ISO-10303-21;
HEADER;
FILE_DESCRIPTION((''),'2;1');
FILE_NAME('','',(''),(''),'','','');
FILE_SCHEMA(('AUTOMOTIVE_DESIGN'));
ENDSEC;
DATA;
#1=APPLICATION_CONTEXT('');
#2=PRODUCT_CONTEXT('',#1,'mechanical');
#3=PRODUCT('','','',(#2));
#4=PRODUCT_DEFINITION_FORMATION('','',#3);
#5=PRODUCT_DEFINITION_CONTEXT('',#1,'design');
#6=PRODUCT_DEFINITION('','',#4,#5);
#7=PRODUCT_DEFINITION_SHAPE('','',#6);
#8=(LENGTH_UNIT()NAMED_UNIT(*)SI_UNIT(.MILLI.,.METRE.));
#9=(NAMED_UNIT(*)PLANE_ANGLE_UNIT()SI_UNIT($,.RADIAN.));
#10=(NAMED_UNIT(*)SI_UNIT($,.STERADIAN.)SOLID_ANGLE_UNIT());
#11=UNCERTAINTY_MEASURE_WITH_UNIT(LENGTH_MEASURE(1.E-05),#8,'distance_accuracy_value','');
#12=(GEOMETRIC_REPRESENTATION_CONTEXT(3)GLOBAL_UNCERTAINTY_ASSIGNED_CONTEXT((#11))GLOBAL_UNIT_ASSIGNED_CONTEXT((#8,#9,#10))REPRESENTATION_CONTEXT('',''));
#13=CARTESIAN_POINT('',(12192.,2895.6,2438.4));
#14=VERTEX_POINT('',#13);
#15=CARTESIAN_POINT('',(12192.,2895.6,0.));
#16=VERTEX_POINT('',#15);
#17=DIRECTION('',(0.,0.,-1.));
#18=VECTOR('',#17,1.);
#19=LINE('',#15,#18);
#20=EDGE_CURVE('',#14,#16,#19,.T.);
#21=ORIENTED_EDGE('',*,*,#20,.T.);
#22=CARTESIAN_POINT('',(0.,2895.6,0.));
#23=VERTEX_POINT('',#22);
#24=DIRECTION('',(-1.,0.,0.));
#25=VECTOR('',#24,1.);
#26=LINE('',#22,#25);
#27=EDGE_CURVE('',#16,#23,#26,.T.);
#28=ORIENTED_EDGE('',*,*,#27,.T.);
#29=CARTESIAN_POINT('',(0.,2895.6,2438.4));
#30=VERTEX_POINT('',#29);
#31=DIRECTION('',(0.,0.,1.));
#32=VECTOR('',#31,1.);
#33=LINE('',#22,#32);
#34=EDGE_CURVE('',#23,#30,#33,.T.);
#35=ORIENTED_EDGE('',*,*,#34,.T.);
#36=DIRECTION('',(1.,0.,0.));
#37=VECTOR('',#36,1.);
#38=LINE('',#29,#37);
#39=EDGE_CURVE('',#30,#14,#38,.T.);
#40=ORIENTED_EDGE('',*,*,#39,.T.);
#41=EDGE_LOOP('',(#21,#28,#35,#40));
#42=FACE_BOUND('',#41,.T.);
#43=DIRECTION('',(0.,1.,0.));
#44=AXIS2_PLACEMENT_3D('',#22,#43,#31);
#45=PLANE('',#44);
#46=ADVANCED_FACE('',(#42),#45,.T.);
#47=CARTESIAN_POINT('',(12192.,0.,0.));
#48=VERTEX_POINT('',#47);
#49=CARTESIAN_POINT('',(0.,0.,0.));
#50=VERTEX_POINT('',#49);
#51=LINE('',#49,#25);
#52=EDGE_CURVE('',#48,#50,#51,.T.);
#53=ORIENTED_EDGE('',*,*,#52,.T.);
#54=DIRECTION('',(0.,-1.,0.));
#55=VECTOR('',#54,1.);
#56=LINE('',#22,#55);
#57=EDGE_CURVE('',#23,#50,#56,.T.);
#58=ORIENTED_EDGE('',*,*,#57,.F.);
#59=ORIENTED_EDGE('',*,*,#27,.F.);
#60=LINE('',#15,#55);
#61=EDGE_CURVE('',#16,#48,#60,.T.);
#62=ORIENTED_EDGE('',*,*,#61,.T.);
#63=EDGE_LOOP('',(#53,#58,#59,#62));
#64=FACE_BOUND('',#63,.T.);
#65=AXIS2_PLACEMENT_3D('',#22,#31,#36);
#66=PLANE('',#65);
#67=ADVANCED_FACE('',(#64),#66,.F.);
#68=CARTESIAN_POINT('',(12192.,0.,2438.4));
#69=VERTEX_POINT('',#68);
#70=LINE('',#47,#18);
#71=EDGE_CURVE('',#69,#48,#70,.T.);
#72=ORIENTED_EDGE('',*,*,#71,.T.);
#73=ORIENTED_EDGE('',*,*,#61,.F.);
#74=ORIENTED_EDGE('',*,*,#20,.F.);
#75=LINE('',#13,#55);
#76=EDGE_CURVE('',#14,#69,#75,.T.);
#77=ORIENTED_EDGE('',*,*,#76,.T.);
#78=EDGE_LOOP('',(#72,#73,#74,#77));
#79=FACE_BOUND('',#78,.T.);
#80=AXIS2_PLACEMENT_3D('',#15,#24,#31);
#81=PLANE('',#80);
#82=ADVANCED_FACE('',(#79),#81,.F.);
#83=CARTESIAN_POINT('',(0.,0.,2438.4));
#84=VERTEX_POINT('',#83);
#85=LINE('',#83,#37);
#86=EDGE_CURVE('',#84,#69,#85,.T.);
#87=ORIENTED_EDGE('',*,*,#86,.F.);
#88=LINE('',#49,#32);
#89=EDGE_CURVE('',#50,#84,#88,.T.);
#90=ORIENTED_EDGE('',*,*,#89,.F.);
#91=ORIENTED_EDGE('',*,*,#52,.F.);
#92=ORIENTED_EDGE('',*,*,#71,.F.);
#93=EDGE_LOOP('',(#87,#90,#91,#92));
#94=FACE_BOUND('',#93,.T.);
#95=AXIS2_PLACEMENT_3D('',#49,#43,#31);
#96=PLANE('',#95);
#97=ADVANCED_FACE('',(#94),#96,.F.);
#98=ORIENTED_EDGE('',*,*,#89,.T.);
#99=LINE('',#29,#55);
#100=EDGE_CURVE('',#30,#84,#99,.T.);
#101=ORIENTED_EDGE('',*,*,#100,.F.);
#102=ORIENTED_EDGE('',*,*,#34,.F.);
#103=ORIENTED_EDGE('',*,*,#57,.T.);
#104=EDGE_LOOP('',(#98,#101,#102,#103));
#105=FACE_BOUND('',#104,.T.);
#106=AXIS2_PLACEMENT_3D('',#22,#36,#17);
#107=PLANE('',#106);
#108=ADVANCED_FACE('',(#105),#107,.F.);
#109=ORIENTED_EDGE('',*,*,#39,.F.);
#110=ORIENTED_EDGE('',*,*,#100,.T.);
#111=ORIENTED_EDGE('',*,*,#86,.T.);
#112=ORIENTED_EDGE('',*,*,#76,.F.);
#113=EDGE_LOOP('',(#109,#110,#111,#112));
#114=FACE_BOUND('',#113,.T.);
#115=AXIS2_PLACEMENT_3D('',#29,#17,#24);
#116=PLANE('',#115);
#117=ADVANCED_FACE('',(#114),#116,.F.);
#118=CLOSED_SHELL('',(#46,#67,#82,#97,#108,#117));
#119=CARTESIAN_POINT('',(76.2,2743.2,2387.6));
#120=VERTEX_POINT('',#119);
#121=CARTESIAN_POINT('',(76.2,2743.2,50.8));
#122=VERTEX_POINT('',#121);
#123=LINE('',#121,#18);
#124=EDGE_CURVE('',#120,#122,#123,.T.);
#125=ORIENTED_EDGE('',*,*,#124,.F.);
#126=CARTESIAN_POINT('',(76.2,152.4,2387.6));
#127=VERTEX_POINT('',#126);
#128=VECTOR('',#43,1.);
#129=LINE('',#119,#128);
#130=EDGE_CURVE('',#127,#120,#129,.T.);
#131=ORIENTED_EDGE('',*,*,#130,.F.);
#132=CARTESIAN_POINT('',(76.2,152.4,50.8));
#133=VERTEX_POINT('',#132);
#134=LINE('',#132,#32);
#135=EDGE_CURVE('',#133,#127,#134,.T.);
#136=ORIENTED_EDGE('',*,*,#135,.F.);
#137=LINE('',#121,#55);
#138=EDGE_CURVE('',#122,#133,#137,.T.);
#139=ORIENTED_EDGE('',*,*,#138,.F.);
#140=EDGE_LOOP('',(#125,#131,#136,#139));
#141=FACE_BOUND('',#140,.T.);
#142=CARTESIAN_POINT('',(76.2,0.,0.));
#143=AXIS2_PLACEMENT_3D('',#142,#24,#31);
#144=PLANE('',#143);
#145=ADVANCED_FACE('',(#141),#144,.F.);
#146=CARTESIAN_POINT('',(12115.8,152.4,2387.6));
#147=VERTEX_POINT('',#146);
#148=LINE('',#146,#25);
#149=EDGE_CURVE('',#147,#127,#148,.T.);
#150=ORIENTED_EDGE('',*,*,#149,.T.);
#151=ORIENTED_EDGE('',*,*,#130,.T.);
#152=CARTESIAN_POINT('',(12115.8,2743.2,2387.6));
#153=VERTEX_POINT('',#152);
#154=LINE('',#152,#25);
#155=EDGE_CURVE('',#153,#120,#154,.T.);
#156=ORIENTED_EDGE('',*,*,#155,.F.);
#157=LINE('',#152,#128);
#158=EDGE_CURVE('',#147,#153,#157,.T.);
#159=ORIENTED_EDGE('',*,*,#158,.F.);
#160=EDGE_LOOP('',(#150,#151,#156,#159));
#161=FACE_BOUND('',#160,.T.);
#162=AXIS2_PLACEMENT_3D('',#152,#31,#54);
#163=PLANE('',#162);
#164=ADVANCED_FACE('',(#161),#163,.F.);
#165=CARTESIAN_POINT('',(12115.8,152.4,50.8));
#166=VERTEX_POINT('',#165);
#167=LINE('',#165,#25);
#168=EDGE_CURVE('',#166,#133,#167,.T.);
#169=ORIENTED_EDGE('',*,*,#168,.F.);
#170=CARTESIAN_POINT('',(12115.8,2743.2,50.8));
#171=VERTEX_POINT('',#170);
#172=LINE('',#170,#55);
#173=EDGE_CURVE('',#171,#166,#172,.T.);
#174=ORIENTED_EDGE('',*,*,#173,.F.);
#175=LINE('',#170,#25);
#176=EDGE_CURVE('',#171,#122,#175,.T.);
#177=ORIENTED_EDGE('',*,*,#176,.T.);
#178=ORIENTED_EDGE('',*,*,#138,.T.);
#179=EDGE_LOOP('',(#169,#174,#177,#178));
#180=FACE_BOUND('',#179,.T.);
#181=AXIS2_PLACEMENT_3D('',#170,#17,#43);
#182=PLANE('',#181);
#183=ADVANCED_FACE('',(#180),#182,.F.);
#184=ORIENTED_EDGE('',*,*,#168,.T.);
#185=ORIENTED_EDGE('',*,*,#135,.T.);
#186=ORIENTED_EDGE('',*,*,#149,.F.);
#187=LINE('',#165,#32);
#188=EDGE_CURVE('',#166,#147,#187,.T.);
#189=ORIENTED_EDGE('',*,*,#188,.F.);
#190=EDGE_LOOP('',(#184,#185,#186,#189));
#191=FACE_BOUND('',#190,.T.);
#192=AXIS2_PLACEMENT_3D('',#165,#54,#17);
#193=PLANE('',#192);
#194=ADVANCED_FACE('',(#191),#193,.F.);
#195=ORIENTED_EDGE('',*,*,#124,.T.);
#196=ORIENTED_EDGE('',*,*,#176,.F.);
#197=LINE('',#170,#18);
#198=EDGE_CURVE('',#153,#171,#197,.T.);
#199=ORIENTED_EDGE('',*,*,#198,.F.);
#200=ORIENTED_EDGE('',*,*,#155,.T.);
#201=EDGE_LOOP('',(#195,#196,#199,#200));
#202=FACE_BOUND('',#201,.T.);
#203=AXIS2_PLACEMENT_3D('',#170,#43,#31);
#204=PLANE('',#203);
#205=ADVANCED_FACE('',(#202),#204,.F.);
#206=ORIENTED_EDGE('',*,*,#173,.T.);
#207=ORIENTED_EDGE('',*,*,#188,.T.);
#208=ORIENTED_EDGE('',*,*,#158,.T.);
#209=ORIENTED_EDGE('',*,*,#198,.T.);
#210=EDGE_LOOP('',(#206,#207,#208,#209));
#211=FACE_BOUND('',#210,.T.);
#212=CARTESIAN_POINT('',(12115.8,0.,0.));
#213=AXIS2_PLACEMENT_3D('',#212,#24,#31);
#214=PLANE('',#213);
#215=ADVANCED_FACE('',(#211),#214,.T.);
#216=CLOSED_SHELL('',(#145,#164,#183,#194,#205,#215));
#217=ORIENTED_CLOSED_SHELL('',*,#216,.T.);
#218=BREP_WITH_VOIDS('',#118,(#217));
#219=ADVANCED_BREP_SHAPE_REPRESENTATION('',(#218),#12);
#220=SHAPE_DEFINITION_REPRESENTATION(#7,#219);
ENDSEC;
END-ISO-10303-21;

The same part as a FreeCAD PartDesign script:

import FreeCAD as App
import Part
import Sketcher
from FreeCAD import Vector
Q = App.Units.Quantity

doc = App.newDocument("Part")
body = doc.addObject("PartDesign::Body", "Body")

# Sketch on XZ plane
sketch1 = body.newObject("Sketcher::SketchObject", "Sketch")
sketch1.AttachmentSupport = (doc.getObject("XZ_Plane"), [""])
sketch1.MapMode = "FlatFace"
sketch1.addGeometry(Part.LineSegment(Vector(0, 0, 0), Vector(0, 2438.4, 0)), False)
sketch1.addGeometry(Part.LineSegment(Vector(0, 2438.4, 0), Vector(12192, 2438.4, 0)), False)
sketch1.addGeometry(Part.LineSegment(Vector(12192, 2438.4, 0), Vector(12192, 0, 0)), False)
sketch1.addGeometry(Part.LineSegment(Vector(12192, 0, 0), Vector(0, 0, 0)), False)
sketch1.addConstraint(Sketcher.Constraint("Coincident", 0, 2, 1, 1))
sketch1.addConstraint(Sketcher.Constraint("Coincident", 1, 2, 2, 1))
sketch1.addConstraint(Sketcher.Constraint("Coincident", 2, 2, 3, 1))
sketch1.addConstraint(Sketcher.Constraint("Coincident", 3, 2, 0, 1))
sketch1.addConstraint(Sketcher.Constraint("Vertical", 0))
sketch1.addConstraint(Sketcher.Constraint("Horizontal", 1))
sketch1.addConstraint(Sketcher.Constraint("Vertical", 2))
sketch1.addConstraint(Sketcher.Constraint("Horizontal", 3))
sketch1.addConstraint(Sketcher.Constraint("Coincident", 3, 2, -1, 1))
sketch1.addConstraint(Sketcher.Constraint("DistanceX", 1, 1, 1, 2, Q("480 in")))
sketch1.addConstraint(Sketcher.Constraint("DistanceY", 0, 1, 0, 2, Q("96 in")))
pad1 = body.newObject("PartDesign::Pad", "Pad")
pad1.Profile = sketch1
pad1.Length = Q("114 in")
pad1.Reversed = True

# Sketch on YZ plane
sketch2 = body.newObject("Sketcher::SketchObject", "Sketch001")
sketch2.AttachmentSupport = (doc.getObject("YZ_Plane"), [""])
sketch2.MapMode = "FlatFace"
sketch2.AttachmentOffset = App.Placement(Vector(0, 0, 3 * 25.4), App.Rotation())
sketch2.addGeometry(Part.LineSegment(Vector(2743.2, 50.8, 0), Vector(152.4, 50.8, 0)), False)
sketch2.addGeometry(Part.LineSegment(Vector(152.4, 50.8, 0), Vector(152.4, 2387.6, 0)), False)
sketch2.addGeometry(Part.LineSegment(Vector(152.4, 2387.6, 0), Vector(2743.2, 2387.6, 0)), False)
sketch2.addGeometry(Part.LineSegment(Vector(2743.2, 2387.6, 0), Vector(2743.2, 50.8, 0)), False)
sketch2.addConstraint(Sketcher.Constraint("Coincident", 0, 2, 1, 1))
sketch2.addConstraint(Sketcher.Constraint("Coincident", 1, 2, 2, 1))
sketch2.addConstraint(Sketcher.Constraint("Coincident", 2, 2, 3, 1))
sketch2.addConstraint(Sketcher.Constraint("Coincident", 3, 2, 0, 1))
sketch2.addConstraint(Sketcher.Constraint("Horizontal", 0))
sketch2.addConstraint(Sketcher.Constraint("Vertical", 1))
sketch2.addConstraint(Sketcher.Constraint("Horizontal", 2))
sketch2.addConstraint(Sketcher.Constraint("Vertical", 3))
sketch2.addConstraint(Sketcher.Constraint("DistanceX", 0, 2, 0, 1, Q("102 in")))
sketch2.addConstraint(Sketcher.Constraint("DistanceY", 1, 1, 1, 2, Q("92 in")))
sketch2.addConstraint(Sketcher.Constraint("DistanceX", -1, 1, 0, 2, Q("6 in")))
sketch2.addConstraint(Sketcher.Constraint("DistanceY", -1, 1, 0, 2, Q("2 in")))
pocket1 = body.newObject("PartDesign::Pocket", "Pocket")
pocket1.Profile = sketch2
pocket1.Length = Q("474 in")
pocket1.Reversed = True

doc.recompute()
